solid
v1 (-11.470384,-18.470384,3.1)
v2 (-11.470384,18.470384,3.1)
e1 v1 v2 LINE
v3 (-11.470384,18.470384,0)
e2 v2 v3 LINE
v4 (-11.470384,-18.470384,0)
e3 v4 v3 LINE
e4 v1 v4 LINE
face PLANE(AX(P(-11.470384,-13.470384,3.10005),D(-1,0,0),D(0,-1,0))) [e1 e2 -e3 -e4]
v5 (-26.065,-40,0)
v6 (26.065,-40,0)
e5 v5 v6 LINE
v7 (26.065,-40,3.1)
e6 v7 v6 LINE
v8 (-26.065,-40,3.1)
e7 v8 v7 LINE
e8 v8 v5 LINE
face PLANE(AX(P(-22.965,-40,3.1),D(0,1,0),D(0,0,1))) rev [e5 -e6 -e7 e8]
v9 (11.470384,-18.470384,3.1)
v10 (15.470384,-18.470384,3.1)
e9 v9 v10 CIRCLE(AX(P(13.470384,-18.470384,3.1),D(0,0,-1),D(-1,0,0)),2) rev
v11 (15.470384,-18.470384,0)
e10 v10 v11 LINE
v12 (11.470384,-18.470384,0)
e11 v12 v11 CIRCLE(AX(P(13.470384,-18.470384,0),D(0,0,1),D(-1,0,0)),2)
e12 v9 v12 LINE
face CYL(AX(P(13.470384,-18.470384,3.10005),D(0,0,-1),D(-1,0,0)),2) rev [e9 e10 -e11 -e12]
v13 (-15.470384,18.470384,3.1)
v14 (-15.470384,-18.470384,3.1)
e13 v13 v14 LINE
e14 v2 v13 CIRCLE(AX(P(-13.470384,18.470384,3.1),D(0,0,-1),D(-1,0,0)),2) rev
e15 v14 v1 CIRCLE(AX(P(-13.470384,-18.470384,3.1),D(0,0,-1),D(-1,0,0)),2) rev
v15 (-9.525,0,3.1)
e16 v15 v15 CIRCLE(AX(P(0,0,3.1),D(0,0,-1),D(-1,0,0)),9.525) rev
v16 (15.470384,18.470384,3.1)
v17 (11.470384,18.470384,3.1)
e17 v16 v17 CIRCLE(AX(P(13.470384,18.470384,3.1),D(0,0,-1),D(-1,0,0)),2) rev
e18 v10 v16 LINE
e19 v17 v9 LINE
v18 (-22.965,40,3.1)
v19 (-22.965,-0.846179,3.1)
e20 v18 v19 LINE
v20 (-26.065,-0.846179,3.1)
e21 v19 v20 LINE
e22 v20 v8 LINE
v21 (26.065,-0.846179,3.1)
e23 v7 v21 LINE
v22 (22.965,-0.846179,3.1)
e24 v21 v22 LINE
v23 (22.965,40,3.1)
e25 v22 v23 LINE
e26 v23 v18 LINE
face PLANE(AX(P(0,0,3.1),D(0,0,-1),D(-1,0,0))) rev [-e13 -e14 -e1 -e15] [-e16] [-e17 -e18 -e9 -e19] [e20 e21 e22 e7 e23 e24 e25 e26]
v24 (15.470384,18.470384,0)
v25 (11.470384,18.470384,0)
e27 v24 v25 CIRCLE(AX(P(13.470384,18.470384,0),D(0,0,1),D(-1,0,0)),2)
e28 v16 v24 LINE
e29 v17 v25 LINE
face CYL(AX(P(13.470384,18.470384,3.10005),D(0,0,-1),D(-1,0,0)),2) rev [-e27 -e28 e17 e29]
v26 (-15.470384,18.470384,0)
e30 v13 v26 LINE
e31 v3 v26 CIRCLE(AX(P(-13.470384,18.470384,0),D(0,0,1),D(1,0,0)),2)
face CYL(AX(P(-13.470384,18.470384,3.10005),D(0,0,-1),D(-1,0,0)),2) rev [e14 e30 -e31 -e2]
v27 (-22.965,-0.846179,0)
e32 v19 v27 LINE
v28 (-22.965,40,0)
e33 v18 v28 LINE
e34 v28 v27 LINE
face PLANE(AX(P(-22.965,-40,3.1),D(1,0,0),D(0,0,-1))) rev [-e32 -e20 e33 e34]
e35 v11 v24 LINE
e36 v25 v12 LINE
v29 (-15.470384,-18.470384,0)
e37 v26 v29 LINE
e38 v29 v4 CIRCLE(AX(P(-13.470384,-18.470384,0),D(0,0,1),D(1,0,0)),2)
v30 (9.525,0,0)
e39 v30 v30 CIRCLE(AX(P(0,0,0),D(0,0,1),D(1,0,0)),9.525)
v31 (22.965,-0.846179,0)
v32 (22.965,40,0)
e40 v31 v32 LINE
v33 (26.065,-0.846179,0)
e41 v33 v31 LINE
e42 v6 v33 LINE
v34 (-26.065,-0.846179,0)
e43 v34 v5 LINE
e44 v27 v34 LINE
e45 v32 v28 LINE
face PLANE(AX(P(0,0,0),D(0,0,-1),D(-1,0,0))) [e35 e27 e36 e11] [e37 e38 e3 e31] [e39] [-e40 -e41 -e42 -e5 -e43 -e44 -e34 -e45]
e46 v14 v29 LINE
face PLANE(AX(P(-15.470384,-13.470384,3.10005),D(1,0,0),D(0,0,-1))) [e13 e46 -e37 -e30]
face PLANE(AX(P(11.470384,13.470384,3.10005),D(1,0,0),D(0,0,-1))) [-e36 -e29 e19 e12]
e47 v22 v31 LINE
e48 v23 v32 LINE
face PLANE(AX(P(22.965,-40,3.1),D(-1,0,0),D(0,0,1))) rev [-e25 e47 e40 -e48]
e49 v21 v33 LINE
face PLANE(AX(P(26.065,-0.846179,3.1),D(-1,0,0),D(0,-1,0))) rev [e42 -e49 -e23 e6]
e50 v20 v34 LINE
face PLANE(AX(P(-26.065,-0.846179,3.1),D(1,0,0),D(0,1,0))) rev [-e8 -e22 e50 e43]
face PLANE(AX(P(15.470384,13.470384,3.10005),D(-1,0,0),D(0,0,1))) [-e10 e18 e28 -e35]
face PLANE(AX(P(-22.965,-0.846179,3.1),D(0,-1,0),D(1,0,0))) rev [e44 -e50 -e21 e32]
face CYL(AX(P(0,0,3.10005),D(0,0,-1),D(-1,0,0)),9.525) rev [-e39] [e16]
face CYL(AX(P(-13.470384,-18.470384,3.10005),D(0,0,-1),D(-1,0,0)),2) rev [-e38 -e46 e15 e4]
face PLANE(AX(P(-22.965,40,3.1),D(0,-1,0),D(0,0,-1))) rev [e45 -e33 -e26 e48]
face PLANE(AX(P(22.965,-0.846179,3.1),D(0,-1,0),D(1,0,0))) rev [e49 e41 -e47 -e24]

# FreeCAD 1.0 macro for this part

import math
import FreeCAD as App
import Part
import Sketcher

doc = App.newDocument("Part")
body = doc.addObject("PartDesign::Body", "Body")

# Sketch on XY plane
sketch1 = body.newObject("Sketcher::SketchObject", "Sketch")
sketch1.AttachmentSupport = (doc.getObject("XY_Plane"), [""])
sketch1.MapMode = "FlatFace"
sketch1.addGeometry([
    Part.LineSegment(App.Vector(-23, 40, 0), App.Vector(-23, -40, 0)),
    Part.LineSegment(App.Vector(-23, -40, 0), App.Vector(23, -40, 0)),
    Part.LineSegment(App.Vector(23, -40, 0), App.Vector(23, 40, 0)),
    Part.LineSegment(App.Vector(23, 40, 0), App.Vector(-23, 40, 0)),
], False)
sketch1.addConstraint([
    Sketcher.Constraint("Coincident", 0, 2, 1, 1),
    Sketcher.Constraint("Coincident", 1, 2, 2, 1),
    Sketcher.Constraint("Coincident", 2, 2, 3, 1),
    Sketcher.Constraint("Coincident", 3, 2, 0, 1),
    Sketcher.Constraint("Vertical", 0),
    Sketcher.Constraint("Horizontal", 1),
    Sketcher.Constraint("Vertical", 2),
    Sketcher.Constraint("Horizontal", 3),
    Sketcher.Constraint("Symmetric", 0, 2, 2, 2, -1, 1),
    Sketcher.Constraint("DistanceY", 0, 2, 0, 1, 80.0),
    Sketcher.Constraint("DistanceX", 1, 1, 1, 2, 45.93),
])
pad1 = body.newObject("PartDesign::Pad", "Pad")
pad1.Profile = sketch1
pad1.Length = 3.1

# Sketch on XY plane
sketch2 = body.newObject("Sketcher::SketchObject", "Sketch001")
sketch2.AttachmentSupport = (doc.getObject("XY_Plane"), [""])
sketch2.MapMode = "FlatFace"
sketch2.addGeometry([
    Part.LineSegment(App.Vector(23, -0.8, 0), App.Vector(23, -40, 0)),  # 0
    Part.LineSegment(App.Vector(23, -40, 0), App.Vector(26.1, -40, 0)),  # 1
    Part.LineSegment(App.Vector(26.1, -40, 0), App.Vector(26.1, -0.8, 0)),  # 2
    Part.LineSegment(App.Vector(26.1, -0.8, 0), App.Vector(23, -0.8, 0)),  # 3
    Part.LineSegment(App.Vector(-26.1, -0.8, 0), App.Vector(-26.1, -40, 0)),  # 4
    Part.LineSegment(App.Vector(-26.1, -40, 0), App.Vector(-23, -40, 0)),  # 5
    Part.LineSegment(App.Vector(-23, -40, 0), App.Vector(-23, -0.8, 0)),  # 6
    Part.LineSegment(App.Vector(-23, -0.8, 0), App.Vector(-26.1, -0.8, 0)),  # 7
], False)
sketch2.addConstraint([
    Sketcher.Constraint("Coincident", 0, 2, 1, 1),
    Sketcher.Constraint("Coincident", 1, 2, 2, 1),
    Sketcher.Constraint("Coincident", 2, 2, 3, 1),
    Sketcher.Constraint("Coincident", 3, 2, 0, 1),
    Sketcher.Constraint("Coincident", 4, 2, 5, 1),
    Sketcher.Constraint("Coincident", 5, 2, 6, 1),
    Sketcher.Constraint("Coincident", 6, 2, 7, 1),
    Sketcher.Constraint("Coincident", 7, 2, 4, 1),
    Sketcher.Constraint("Vertical", 0),
    Sketcher.Constraint("Horizontal", 1),
    Sketcher.Constraint("Vertical", 2),
    Sketcher.Constraint("Horizontal", 3),
    Sketcher.Constraint("Vertical", 4),
    Sketcher.Constraint("Horizontal", 5),
    Sketcher.Constraint("Vertical", 6),
    Sketcher.Constraint("Horizontal", 7),
    Sketcher.Constraint("Symmetric", 1, 2, 4, 2, -2),
    Sketcher.Constraint("Symmetric", 3, 2, 6, 2, -2),
    Sketcher.Constraint("DistanceX", 1, 1, 1, 2, 3.1),
    Sketcher.Constraint("DistanceY", 0, 2, -1, 1, 40.0),
    Sketcher.Constraint("DistanceX", 4, 2, 0, 2, 49.03),
    Sketcher.Constraint("DistanceY", 0, 2, 0, 1, 39.153821),
])
pad2 = body.newObject("PartDesign::Pad", "Pad001")
pad2.Profile = sketch2
pad2.Type = "UpToLast"

# Sketch on XY plane
sketch3 = body.newObject("Sketcher::SketchObject", "Sketch002")
sketch3.AttachmentSupport = (doc.getObject("XY_Plane"), [""])
sketch3.MapMode = "FlatFace"
sketch3.addGeometry([
    Part.Circle(App.Vector(0, 0, 0), App.Vector(0, 0, 1), 9.5),  # 0
    Part.ArcOfCircle(Part.Circle(App.Vector(-13.5, -18.5, 0), App.Vector(0, 0, 1), 2), math.radians(180), math.radians(360)),  # 1
    Part.LineSegment(App.Vector(-11.5, -18.5, 0), App.Vector(-11.5, 18.5, 0)),  # 2
    Part.ArcOfCircle(Part.Circle(App.Vector(-13.5, 18.5, 0), App.Vector(0, 0, 1), 2), math.radians(0), math.radians(180)),  # 3
    Part.LineSegment(App.Vector(-15.5, 18.5, 0), App.Vector(-15.5, -18.5, 0)),  # 4
    Part.ArcOfCircle(Part.Circle(App.Vector(13.5, 18.5, 0), App.Vector(0, 0, 1), 2), math.radians(0), math.radians(180)),  # 5
    Part.LineSegment(App.Vector(11.5, 18.5, 0), App.Vector(11.5, -18.5, 0)),  # 6
    Part.ArcOfCircle(Part.Circle(App.Vector(13.5, -18.5, 0), App.Vector(0, 0, 1), 2), math.radians(180), math.radians(360)),  # 7
    Part.LineSegment(App.Vector(15.5, -18.5, 0), App.Vector(15.5, 18.5, 0)),  # 8
], False)
sketch3.addConstraint([
    Sketcher.Constraint("Tangent", 1, 2, 2, 1),
    Sketcher.Constraint("Tangent", 2, 2, 3, 1),
    Sketcher.Constraint("Tangent", 3, 2, 4, 1),
    Sketcher.Constraint("Tangent", 4, 2, 1, 1),
    Sketcher.Constraint("Tangent", 5, 2, 6, 1),
    Sketcher.Constraint("Tangent", 6, 2, 7, 1),
    Sketcher.Constraint("Tangent", 7, 2, 8, 1),
    Sketcher.Constraint("Tangent", 8, 2, 5, 1),
    Sketcher.Constraint("Vertical", 2),
    Sketcher.Constraint("Vertical", 4),
    Sketcher.Constraint("Vertical", 6),
    Sketcher.Constraint("Vertical", 8),
    Sketcher.Constraint("Coincident", 0, 3, -1, 1),
    Sketcher.Constraint("Equal", 3, 5),
    Sketcher.Constraint("Symmetric", 1, 3, 5, 3, -1, 1),
    Sketcher.Constraint("Horizontal", 3, 3, 5, 3),
    Sketcher.Constraint("Horizontal", 1, 3, 7, 3),
    Sketcher.Constraint("Radius", 1, 2.0),
    Sketcher.Constraint("Diameter", 0, 19.05),
    Sketcher.Constraint("DistanceY", 2, 1, 2, 2, 36.940768),
    Sketcher.Constraint("DistanceX", 3, 3, 5, 3, 26.940768),
])
pocket1 = body.newObject("PartDesign::Pocket", "Pocket")
pocket1.Profile = sketch3
pocket1.Type = "ThroughAll"
pocket1.Reversed = True

doc.recompute()
